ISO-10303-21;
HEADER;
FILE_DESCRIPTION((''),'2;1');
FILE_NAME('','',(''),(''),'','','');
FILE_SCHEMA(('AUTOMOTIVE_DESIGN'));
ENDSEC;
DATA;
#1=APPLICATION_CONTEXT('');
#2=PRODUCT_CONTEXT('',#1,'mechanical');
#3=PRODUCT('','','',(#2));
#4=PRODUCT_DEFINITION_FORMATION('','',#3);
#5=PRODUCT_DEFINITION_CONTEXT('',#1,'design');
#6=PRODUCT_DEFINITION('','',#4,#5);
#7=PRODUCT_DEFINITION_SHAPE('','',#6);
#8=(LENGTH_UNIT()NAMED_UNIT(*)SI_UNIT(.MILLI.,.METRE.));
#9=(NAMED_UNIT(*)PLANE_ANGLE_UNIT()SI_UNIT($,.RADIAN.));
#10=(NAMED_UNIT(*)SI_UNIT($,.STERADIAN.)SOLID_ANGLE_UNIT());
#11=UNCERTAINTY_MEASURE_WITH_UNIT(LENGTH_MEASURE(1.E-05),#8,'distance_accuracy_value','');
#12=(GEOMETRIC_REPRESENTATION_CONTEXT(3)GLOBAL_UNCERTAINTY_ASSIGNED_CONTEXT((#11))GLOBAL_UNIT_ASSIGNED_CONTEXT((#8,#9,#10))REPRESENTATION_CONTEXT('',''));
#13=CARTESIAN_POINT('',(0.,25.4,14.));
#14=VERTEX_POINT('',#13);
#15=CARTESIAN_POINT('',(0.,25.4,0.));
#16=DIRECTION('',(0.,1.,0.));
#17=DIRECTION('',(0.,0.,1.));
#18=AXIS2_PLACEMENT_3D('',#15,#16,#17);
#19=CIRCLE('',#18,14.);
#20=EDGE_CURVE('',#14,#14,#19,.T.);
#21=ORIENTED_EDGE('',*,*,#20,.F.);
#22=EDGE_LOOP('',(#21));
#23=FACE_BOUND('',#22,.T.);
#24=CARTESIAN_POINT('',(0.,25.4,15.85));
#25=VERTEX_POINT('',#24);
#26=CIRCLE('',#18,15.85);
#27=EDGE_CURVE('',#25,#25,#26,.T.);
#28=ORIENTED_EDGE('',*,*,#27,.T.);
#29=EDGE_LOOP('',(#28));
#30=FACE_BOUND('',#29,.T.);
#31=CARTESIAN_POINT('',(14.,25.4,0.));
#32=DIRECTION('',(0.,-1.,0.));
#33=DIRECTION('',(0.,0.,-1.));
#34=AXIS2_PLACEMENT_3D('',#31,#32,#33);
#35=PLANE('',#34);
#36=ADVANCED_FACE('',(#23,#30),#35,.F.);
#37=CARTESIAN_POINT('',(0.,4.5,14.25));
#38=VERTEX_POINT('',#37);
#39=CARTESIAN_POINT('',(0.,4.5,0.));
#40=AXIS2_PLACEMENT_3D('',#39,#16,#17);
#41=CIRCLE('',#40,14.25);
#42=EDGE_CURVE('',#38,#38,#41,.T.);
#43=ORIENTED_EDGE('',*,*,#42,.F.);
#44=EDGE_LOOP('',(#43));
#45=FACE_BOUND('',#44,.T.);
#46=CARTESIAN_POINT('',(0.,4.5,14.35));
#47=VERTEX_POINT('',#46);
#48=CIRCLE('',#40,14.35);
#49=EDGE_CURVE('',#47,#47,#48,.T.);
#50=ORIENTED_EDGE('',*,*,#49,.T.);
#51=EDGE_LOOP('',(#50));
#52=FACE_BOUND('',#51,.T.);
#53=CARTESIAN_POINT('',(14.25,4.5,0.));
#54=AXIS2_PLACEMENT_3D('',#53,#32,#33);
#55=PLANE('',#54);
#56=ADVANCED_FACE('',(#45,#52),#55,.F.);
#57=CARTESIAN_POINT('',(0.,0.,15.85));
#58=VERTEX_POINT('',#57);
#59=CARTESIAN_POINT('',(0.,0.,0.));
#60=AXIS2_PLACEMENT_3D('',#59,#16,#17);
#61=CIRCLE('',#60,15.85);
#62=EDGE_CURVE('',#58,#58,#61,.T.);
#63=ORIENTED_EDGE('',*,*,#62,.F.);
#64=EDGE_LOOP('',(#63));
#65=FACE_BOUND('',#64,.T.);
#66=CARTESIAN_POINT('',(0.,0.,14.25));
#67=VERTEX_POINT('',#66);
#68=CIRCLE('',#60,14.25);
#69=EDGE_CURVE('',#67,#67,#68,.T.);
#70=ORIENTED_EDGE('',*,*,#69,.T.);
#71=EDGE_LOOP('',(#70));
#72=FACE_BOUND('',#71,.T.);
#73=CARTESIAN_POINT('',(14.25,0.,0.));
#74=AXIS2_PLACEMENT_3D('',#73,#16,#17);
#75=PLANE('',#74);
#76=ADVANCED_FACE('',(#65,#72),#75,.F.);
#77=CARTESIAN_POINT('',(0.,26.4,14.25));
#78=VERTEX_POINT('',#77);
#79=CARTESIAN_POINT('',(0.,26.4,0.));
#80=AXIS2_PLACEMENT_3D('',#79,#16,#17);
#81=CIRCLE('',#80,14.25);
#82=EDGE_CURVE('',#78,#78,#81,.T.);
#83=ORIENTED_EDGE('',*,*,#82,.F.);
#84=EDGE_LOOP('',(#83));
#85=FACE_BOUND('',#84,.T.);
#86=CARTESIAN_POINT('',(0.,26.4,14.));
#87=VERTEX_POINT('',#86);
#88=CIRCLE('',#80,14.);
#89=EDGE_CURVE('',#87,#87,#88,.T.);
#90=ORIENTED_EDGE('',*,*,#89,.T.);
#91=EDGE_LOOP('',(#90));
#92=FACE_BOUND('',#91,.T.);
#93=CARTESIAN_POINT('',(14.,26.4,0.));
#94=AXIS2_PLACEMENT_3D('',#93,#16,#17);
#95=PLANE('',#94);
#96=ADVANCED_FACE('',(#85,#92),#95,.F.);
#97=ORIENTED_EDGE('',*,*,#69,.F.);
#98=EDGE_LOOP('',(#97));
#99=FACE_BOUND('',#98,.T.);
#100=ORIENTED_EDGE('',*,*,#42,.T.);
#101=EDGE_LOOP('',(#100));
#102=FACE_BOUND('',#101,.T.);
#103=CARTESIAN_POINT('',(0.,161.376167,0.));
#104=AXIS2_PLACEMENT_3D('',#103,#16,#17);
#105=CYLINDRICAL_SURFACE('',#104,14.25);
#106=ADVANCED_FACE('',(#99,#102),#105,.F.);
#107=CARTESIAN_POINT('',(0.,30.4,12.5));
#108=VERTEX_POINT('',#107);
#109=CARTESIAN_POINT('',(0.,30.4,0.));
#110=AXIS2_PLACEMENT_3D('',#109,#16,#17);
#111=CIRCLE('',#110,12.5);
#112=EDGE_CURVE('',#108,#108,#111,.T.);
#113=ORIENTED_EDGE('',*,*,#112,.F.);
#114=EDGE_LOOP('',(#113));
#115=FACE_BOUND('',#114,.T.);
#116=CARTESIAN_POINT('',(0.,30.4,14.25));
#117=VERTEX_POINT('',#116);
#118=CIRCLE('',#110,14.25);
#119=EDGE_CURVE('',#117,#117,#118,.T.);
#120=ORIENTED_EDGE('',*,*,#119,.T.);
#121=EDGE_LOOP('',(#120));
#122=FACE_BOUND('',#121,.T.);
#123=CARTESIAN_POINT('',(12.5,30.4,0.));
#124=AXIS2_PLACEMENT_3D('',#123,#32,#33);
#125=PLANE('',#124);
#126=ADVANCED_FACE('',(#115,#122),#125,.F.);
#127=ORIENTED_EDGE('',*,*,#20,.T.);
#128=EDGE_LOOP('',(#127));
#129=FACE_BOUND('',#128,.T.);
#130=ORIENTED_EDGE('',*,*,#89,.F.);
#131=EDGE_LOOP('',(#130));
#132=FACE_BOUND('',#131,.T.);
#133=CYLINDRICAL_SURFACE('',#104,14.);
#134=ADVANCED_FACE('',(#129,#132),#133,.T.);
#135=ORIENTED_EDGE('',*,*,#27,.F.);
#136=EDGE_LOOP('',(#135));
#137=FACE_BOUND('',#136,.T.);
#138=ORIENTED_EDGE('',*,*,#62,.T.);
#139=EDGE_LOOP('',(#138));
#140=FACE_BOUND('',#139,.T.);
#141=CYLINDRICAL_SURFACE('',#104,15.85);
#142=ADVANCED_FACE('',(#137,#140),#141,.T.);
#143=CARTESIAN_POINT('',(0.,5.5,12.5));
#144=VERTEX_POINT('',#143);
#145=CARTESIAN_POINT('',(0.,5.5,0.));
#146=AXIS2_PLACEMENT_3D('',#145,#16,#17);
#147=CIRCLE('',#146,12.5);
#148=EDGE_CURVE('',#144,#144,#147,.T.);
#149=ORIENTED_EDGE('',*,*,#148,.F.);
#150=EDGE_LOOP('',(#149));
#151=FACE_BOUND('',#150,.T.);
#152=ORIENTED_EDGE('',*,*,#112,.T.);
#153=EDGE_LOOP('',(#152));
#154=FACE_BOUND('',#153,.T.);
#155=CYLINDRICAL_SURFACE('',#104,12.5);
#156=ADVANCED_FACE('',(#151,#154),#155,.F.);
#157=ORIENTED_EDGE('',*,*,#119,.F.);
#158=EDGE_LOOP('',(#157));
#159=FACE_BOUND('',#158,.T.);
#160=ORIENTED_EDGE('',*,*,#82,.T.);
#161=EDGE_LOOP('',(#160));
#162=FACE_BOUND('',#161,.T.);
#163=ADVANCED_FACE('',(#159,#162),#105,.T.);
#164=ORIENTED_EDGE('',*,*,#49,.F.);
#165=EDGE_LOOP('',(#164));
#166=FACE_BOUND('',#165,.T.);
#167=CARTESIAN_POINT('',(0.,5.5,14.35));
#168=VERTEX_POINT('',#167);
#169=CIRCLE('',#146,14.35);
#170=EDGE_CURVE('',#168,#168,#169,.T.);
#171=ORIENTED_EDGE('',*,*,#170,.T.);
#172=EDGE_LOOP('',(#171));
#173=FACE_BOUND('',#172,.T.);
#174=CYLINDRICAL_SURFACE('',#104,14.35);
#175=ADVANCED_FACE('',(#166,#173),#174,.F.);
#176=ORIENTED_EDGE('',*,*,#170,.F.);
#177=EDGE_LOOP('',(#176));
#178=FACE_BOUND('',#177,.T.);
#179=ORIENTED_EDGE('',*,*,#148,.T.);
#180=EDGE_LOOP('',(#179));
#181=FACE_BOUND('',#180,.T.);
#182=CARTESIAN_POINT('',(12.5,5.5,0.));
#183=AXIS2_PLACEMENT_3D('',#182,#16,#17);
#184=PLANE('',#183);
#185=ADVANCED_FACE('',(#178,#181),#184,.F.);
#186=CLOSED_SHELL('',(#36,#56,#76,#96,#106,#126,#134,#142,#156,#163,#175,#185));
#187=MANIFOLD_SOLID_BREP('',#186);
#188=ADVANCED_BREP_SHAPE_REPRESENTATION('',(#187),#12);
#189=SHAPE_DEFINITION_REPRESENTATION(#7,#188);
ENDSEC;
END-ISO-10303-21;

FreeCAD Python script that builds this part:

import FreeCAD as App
import Part
import Sketcher
from FreeCAD import Vector
Q = App.Units.Quantity


def add_polygon(sketch, points):
    """Adds a closed chain of lines whose ends are joined by coincident constraints."""
    first, n = sketch.GeometryCount, len(points)
    for a, b in zip(points, points[1:] + points[:1]):
        sketch.addGeometry(Part.LineSegment(App.Vector(*a, 0), App.Vector(*b, 0)), False)
    for i in range(n):
        sketch.addConstraint(Sketcher.Constraint("Coincident", first + i, 2, first + (i + 1) % n, 1))

doc = App.newDocument("Part")
body = doc.addObject("PartDesign::Body", "Body")

# Sketch on XY plane
sketch1 = body.newObject("Sketcher::SketchObject", "Sketch")
sketch1.AttachmentSupport = (doc.getObject("XY_Plane"), [""])
sketch1.MapMode = "FlatFace"
add_polygon(sketch1, [(14.25, 4.5), (14.25, 0), (15.85, 0), (15.85, 25.4), (14, 25.4), (14, 26.4), (14.25, 26.4), (14.25, 30.4), (12.5, 30.4), (12.5, 5.5), (14.35, 5.5), (14.35, 4.5)])  # lines 0-11
sketch1.addConstraint(Sketcher.Constraint("Vertical", 0))
sketch1.addConstraint(Sketcher.Constraint("Horizontal", 1))
sketch1.addConstraint(Sketcher.Constraint("Vertical", 2))
sketch1.addConstraint(Sketcher.Constraint("Horizontal", 3))
sketch1.addConstraint(Sketcher.Constraint("Vertical", 4))
sketch1.addConstraint(Sketcher.Constraint("Horizontal", 5))
sketch1.addConstraint(Sketcher.Constraint("Vertical", 6))
sketch1.addConstraint(Sketcher.Constraint("Horizontal", 7))
sketch1.addConstraint(Sketcher.Constraint("Vertical", 8))
sketch1.addConstraint(Sketcher.Constraint("Horizontal", 9))
sketch1.addConstraint(Sketcher.Constraint("Vertical", 10))
sketch1.addConstraint(Sketcher.Constraint("Horizontal", 11))
sketch1.addConstraint(Sketcher.Constraint("PointOnObject", 0, 2, -1))
sketch1.addConstraint(Sketcher.Constraint("Vertical", 0, 2, 5, 2))
sketch1.addConstraint(Sketcher.Constraint("Equal", 3, 9))
sketch1.addConstraint(Sketcher.Constraint("Equal", 4, 10))
sketch1.addConstraint(Sketcher.Constraint("DistanceY", 4, 1, 4, 2, Q("1 mm")))
sketch1.addConstraint(Sketcher.Constraint("DistanceY", 6, 1, 6, 2, Q("4 mm")))
sketch1.addConstraint(Sketcher.Constraint("DistanceX", 1, 1, 1, 2, Q("1.6 mm")))
sketch1.addConstraint(Sketcher.Constraint("DistanceX", 11, 2, 11, 1, Q("0.1 mm")))
sketch1.addConstraint(Sketcher.Constraint("DistanceY", 0, 2, 0, 1, Q("4.5 mm")))
sketch1.addConstraint(Sketcher.Constraint("DistanceY", 2, 1, 2, 2, Q("25.4 mm")))
sketch1.addConstraint(Sketcher.Constraint("DistanceX", -1, 1, 3, 2, Q("14 mm")))
sketch1.addConstraint(Sketcher.Constraint("DistanceX", 3, 2, 3, 1, Q("1.85 mm")))
revolution = body.newObject("PartDesign::Revolution", "Revolution")
revolution.Profile = sketch1
revolution.ReferenceAxis = (sketch1, ["V_Axis"])
revolution.Angle = 360

doc.recompute()
